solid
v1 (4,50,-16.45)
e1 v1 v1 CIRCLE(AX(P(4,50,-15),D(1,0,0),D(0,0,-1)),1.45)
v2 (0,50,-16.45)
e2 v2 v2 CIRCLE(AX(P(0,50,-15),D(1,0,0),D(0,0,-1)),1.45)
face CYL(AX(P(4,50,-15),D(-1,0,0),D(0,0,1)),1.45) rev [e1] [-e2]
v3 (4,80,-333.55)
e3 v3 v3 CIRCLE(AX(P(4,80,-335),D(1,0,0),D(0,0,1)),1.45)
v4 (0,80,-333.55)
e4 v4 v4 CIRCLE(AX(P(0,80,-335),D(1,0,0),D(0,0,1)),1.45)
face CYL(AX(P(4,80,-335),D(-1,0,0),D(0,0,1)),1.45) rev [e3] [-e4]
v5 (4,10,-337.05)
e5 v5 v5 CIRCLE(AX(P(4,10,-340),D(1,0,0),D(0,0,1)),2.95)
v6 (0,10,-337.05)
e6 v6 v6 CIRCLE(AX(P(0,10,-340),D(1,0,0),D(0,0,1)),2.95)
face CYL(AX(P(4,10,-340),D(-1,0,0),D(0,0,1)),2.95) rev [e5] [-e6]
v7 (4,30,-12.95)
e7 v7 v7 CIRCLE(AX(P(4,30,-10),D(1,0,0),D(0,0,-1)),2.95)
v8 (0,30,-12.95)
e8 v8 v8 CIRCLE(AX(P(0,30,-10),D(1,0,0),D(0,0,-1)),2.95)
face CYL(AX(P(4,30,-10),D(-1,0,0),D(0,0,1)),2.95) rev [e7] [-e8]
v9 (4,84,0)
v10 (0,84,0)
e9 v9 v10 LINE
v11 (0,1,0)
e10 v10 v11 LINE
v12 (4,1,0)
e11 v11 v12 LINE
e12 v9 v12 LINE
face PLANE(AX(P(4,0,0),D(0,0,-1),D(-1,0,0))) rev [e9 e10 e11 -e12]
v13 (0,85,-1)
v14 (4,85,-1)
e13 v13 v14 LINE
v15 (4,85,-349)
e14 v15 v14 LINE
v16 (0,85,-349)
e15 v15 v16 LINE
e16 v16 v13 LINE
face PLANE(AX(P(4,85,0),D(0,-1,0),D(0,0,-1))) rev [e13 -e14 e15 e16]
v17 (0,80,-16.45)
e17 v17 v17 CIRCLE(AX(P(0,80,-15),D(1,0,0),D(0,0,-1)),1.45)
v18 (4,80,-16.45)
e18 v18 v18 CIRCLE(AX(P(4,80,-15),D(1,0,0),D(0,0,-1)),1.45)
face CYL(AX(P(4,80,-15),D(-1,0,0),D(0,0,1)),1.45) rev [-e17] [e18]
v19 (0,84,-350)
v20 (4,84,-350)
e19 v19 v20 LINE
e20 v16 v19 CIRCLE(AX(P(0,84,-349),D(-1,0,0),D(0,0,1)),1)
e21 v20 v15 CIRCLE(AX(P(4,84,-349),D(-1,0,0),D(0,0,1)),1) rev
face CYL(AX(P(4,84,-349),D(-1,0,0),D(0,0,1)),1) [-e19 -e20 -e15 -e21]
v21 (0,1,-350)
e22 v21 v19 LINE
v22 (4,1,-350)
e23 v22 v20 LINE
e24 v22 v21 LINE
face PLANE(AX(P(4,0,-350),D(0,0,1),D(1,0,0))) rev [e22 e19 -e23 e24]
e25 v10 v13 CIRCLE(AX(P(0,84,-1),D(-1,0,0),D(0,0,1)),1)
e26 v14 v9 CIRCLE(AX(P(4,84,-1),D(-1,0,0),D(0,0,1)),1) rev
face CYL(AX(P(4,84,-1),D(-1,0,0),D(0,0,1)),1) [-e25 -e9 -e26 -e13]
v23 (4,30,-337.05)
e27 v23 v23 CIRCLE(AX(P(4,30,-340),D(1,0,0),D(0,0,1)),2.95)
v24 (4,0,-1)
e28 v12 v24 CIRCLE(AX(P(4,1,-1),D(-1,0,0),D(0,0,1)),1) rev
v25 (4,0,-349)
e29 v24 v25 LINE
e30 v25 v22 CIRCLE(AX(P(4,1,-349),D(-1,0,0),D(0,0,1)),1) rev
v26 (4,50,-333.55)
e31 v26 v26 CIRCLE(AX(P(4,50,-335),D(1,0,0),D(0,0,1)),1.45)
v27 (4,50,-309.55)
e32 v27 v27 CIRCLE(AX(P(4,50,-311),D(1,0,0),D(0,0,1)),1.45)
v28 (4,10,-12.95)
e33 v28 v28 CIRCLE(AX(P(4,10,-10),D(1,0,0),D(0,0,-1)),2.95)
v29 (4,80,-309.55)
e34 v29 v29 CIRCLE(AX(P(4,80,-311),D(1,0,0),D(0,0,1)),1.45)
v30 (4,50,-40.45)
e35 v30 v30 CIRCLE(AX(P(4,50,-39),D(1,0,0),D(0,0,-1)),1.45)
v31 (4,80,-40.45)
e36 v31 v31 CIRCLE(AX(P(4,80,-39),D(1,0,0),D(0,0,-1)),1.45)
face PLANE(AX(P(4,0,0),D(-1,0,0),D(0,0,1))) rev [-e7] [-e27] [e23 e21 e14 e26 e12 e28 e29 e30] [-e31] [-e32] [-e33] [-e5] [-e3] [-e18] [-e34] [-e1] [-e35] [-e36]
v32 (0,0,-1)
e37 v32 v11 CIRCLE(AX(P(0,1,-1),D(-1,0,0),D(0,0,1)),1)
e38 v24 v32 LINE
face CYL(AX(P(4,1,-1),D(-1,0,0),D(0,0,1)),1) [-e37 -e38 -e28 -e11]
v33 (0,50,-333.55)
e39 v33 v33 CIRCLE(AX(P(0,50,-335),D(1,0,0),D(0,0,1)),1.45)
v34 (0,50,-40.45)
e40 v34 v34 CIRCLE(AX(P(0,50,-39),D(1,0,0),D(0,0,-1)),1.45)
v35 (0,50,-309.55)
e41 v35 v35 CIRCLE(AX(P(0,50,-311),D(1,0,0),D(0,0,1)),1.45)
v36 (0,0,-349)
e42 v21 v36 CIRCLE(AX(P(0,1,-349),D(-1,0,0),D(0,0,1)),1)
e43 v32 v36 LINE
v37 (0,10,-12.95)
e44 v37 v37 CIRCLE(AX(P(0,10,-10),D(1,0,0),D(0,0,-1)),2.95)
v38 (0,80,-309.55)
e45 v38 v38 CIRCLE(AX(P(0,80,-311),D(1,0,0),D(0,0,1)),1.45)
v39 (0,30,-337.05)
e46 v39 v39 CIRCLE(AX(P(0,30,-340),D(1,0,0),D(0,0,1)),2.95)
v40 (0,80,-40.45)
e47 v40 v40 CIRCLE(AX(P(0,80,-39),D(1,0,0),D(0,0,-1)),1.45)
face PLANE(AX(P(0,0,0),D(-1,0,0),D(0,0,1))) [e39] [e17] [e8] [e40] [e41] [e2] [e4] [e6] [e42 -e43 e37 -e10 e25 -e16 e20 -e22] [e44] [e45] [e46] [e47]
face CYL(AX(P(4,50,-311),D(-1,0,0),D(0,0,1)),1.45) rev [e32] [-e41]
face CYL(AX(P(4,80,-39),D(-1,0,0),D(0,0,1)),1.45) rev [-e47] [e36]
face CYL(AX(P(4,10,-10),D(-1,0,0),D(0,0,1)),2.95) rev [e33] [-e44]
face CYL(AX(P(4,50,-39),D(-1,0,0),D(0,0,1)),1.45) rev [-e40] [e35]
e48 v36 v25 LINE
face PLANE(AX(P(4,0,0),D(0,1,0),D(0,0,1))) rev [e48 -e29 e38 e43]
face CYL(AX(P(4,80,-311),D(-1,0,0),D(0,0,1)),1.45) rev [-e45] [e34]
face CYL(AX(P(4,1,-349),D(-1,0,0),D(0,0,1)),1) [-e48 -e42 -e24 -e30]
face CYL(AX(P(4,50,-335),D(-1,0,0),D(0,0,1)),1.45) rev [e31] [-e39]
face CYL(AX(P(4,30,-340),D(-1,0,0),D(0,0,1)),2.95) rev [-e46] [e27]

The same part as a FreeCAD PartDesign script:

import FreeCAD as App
import Part
import Sketcher

V = App.Vector


def edges_at(feature, points):
    """Names of the edges that pass closest to the given points."""
    edges = feature.Shape.Edges
    near = lambda p: min(range(len(edges)), key=lambda i: edges[i].distToShape(Part.Vertex(*p))[0])
    return sorted({f"Edge{near(p) + 1}" for p in points})

doc = App.newDocument("Part")
body = doc.addObject("PartDesign::Body", "Body")

# Sketch on YZ plane
sketch1 = body.newObject("Sketcher::SketchObject", "Sketch")
sketch1.AttachmentSupport = (doc.getObject("YZ_Plane"), [""])
sketch1.MapMode = "FlatFace"
sketch1.addGeometry([
    Part.LineSegment(V(85, 0, 0), V(0, 0, 0)),  # 0
    Part.LineSegment(V(0, 0, 0), V(0, -350, 0)),  # 1
    Part.LineSegment(V(0, -350, 0), V(85, -350, 0)),  # 2
    Part.LineSegment(V(85, -350, 0), V(85, 0, 0)),  # 3
    Part.Circle(V(10, -10, 0), V(0, 0, 1), 2.95),  # 4
    Part.Circle(V(30, -10, 0), V(0, 0, 1), 2.95),  # 5
    Part.Circle(V(10, -340, 0), V(0, 0, 1), 2.95),  # 6
    Part.Circle(V(30, -340, 0), V(0, 0, 1), 2.95),  # 7
    Part.Circle(V(50, -15, 0), V(0, 0, 1), 1.45),  # 8
    Part.Circle(V(50, -39, 0), V(0, 0, 1), 1.45),  # 9
    Part.Circle(V(80, -15, 0), V(0, 0, 1), 1.45),  # 10
    Part.Circle(V(80, -39, 0), V(0, 0, 1), 1.45),  # 11
    Part.Circle(V(50, -311, 0), V(0, 0, 1), 1.45),  # 12
    Part.Circle(V(50, -335, 0), V(0, 0, 1), 1.45),  # 13
    Part.Circle(V(80, -311, 0), V(0, 0, 1), 1.45),  # 14
    Part.Circle(V(80, -335, 0), V(0, 0, 1), 1.45),  # 15
], False)
sketch1.addConstraint([
    Sketcher.Constraint("Coincident", 0, 2, 1, 1),
    Sketcher.Constraint("Coincident", 1, 2, 2, 1),
    Sketcher.Constraint("Coincident", 2, 2, 3, 1),
    Sketcher.Constraint("Coincident", 3, 2, 0, 1),
    Sketcher.Constraint("Horizontal", 0),
    Sketcher.Constraint("Vertical", 1),
    Sketcher.Constraint("Horizontal", 2),
    Sketcher.Constraint("Vertical", 3),
    Sketcher.Constraint("Coincident", 0, 2, -1, 1),
    Sketcher.Constraint("Equal", 4, 5),
    Sketcher.Constraint("Equal", 5, 6),
    Sketcher.Constraint("Equal", 6, 7),
    Sketcher.Constraint("Equal", 8, 9),
    Sketcher.Constraint("Equal", 9, 10),
    Sketcher.Constraint("Equal", 10, 11),
    Sketcher.Constraint("Equal", 11, 12),
    Sketcher.Constraint("Equal", 12, 13),
    Sketcher.Constraint("Equal", 13, 14),
    Sketcher.Constraint("Equal", 14, 15),
    Sketcher.Constraint("Horizontal", 4, 3, 5, 3),
    Sketcher.Constraint("Horizontal", 6, 3, 7, 3),
    Sketcher.Constraint("Horizontal", 8, 3, 10, 3),
    Sketcher.Constraint("Horizontal", 9, 3, 11, 3),
    Sketcher.Constraint("Horizontal", 12, 3, 14, 3),
    Sketcher.Constraint("Horizontal", 13, 3, 15, 3),
    Sketcher.Constraint("Vertical", 4, 3, 6, 3),
    Sketcher.Constraint("Vertical", 5, 3, 7, 3),
    Sketcher.Constraint("Vertical", 8, 3, 9, 3),
    Sketcher.Constraint("Vertical", 10, 3, 11, 3),
    Sketcher.Constraint("Vertical", 9, 3, 12, 3),
    Sketcher.Constraint("Vertical", 12, 3, 13, 3),
    Sketcher.Constraint("Vertical", 11, 3, 14, 3),
    Sketcher.Constraint("Vertical", 14, 3, 15, 3),
    Sketcher.Constraint("Diameter", 4, 5.9),
    Sketcher.Constraint("Diameter", 8, 2.9),
    Sketcher.Constraint("DistanceX", 0, 2, 0, 1, 85.0),
    Sketcher.Constraint("DistanceY", 1, 2, 1, 1, 350.0),
    Sketcher.Constraint("DistanceX", -1, 1, 4, 3, 10.0),
    Sketcher.Constraint("DistanceY", 4, 3, -1, 1, 10.0),
    Sketcher.Constraint("DistanceX", -1, 1, 5, 3, 30.0),
    Sketcher.Constraint("DistanceY", 6, 3, -1, 1, 340.0),
    Sketcher.Constraint("DistanceX", -1, 1, 8, 3, 50.0),
    Sketcher.Constraint("DistanceY", 8, 3, -1, 1, 15.0),
    Sketcher.Constraint("DistanceY", 9, 3, -1, 1, 39.0),
    Sketcher.Constraint("DistanceX", -1, 1, 10, 3, 80.0),
    Sketcher.Constraint("DistanceY", 12, 3, -1, 1, 311.0),
    Sketcher.Constraint("DistanceY", 13, 3, -1, 1, 335.0),
])
pad1 = body.newObject("PartDesign::Pad", "Pad")
pad1.Profile = sketch1
pad1.Length = 4
doc.recompute()

fillet = body.newObject("PartDesign::Fillet", "Fillet")
fillet.Base = (pad1, edges_at(pad1, [
    (2, 85, 0),
    (2, 85, -350),
    (2, 0, -350),
    (2, 0, 0),
]))
fillet.Radius = 1

doc.recompute()
